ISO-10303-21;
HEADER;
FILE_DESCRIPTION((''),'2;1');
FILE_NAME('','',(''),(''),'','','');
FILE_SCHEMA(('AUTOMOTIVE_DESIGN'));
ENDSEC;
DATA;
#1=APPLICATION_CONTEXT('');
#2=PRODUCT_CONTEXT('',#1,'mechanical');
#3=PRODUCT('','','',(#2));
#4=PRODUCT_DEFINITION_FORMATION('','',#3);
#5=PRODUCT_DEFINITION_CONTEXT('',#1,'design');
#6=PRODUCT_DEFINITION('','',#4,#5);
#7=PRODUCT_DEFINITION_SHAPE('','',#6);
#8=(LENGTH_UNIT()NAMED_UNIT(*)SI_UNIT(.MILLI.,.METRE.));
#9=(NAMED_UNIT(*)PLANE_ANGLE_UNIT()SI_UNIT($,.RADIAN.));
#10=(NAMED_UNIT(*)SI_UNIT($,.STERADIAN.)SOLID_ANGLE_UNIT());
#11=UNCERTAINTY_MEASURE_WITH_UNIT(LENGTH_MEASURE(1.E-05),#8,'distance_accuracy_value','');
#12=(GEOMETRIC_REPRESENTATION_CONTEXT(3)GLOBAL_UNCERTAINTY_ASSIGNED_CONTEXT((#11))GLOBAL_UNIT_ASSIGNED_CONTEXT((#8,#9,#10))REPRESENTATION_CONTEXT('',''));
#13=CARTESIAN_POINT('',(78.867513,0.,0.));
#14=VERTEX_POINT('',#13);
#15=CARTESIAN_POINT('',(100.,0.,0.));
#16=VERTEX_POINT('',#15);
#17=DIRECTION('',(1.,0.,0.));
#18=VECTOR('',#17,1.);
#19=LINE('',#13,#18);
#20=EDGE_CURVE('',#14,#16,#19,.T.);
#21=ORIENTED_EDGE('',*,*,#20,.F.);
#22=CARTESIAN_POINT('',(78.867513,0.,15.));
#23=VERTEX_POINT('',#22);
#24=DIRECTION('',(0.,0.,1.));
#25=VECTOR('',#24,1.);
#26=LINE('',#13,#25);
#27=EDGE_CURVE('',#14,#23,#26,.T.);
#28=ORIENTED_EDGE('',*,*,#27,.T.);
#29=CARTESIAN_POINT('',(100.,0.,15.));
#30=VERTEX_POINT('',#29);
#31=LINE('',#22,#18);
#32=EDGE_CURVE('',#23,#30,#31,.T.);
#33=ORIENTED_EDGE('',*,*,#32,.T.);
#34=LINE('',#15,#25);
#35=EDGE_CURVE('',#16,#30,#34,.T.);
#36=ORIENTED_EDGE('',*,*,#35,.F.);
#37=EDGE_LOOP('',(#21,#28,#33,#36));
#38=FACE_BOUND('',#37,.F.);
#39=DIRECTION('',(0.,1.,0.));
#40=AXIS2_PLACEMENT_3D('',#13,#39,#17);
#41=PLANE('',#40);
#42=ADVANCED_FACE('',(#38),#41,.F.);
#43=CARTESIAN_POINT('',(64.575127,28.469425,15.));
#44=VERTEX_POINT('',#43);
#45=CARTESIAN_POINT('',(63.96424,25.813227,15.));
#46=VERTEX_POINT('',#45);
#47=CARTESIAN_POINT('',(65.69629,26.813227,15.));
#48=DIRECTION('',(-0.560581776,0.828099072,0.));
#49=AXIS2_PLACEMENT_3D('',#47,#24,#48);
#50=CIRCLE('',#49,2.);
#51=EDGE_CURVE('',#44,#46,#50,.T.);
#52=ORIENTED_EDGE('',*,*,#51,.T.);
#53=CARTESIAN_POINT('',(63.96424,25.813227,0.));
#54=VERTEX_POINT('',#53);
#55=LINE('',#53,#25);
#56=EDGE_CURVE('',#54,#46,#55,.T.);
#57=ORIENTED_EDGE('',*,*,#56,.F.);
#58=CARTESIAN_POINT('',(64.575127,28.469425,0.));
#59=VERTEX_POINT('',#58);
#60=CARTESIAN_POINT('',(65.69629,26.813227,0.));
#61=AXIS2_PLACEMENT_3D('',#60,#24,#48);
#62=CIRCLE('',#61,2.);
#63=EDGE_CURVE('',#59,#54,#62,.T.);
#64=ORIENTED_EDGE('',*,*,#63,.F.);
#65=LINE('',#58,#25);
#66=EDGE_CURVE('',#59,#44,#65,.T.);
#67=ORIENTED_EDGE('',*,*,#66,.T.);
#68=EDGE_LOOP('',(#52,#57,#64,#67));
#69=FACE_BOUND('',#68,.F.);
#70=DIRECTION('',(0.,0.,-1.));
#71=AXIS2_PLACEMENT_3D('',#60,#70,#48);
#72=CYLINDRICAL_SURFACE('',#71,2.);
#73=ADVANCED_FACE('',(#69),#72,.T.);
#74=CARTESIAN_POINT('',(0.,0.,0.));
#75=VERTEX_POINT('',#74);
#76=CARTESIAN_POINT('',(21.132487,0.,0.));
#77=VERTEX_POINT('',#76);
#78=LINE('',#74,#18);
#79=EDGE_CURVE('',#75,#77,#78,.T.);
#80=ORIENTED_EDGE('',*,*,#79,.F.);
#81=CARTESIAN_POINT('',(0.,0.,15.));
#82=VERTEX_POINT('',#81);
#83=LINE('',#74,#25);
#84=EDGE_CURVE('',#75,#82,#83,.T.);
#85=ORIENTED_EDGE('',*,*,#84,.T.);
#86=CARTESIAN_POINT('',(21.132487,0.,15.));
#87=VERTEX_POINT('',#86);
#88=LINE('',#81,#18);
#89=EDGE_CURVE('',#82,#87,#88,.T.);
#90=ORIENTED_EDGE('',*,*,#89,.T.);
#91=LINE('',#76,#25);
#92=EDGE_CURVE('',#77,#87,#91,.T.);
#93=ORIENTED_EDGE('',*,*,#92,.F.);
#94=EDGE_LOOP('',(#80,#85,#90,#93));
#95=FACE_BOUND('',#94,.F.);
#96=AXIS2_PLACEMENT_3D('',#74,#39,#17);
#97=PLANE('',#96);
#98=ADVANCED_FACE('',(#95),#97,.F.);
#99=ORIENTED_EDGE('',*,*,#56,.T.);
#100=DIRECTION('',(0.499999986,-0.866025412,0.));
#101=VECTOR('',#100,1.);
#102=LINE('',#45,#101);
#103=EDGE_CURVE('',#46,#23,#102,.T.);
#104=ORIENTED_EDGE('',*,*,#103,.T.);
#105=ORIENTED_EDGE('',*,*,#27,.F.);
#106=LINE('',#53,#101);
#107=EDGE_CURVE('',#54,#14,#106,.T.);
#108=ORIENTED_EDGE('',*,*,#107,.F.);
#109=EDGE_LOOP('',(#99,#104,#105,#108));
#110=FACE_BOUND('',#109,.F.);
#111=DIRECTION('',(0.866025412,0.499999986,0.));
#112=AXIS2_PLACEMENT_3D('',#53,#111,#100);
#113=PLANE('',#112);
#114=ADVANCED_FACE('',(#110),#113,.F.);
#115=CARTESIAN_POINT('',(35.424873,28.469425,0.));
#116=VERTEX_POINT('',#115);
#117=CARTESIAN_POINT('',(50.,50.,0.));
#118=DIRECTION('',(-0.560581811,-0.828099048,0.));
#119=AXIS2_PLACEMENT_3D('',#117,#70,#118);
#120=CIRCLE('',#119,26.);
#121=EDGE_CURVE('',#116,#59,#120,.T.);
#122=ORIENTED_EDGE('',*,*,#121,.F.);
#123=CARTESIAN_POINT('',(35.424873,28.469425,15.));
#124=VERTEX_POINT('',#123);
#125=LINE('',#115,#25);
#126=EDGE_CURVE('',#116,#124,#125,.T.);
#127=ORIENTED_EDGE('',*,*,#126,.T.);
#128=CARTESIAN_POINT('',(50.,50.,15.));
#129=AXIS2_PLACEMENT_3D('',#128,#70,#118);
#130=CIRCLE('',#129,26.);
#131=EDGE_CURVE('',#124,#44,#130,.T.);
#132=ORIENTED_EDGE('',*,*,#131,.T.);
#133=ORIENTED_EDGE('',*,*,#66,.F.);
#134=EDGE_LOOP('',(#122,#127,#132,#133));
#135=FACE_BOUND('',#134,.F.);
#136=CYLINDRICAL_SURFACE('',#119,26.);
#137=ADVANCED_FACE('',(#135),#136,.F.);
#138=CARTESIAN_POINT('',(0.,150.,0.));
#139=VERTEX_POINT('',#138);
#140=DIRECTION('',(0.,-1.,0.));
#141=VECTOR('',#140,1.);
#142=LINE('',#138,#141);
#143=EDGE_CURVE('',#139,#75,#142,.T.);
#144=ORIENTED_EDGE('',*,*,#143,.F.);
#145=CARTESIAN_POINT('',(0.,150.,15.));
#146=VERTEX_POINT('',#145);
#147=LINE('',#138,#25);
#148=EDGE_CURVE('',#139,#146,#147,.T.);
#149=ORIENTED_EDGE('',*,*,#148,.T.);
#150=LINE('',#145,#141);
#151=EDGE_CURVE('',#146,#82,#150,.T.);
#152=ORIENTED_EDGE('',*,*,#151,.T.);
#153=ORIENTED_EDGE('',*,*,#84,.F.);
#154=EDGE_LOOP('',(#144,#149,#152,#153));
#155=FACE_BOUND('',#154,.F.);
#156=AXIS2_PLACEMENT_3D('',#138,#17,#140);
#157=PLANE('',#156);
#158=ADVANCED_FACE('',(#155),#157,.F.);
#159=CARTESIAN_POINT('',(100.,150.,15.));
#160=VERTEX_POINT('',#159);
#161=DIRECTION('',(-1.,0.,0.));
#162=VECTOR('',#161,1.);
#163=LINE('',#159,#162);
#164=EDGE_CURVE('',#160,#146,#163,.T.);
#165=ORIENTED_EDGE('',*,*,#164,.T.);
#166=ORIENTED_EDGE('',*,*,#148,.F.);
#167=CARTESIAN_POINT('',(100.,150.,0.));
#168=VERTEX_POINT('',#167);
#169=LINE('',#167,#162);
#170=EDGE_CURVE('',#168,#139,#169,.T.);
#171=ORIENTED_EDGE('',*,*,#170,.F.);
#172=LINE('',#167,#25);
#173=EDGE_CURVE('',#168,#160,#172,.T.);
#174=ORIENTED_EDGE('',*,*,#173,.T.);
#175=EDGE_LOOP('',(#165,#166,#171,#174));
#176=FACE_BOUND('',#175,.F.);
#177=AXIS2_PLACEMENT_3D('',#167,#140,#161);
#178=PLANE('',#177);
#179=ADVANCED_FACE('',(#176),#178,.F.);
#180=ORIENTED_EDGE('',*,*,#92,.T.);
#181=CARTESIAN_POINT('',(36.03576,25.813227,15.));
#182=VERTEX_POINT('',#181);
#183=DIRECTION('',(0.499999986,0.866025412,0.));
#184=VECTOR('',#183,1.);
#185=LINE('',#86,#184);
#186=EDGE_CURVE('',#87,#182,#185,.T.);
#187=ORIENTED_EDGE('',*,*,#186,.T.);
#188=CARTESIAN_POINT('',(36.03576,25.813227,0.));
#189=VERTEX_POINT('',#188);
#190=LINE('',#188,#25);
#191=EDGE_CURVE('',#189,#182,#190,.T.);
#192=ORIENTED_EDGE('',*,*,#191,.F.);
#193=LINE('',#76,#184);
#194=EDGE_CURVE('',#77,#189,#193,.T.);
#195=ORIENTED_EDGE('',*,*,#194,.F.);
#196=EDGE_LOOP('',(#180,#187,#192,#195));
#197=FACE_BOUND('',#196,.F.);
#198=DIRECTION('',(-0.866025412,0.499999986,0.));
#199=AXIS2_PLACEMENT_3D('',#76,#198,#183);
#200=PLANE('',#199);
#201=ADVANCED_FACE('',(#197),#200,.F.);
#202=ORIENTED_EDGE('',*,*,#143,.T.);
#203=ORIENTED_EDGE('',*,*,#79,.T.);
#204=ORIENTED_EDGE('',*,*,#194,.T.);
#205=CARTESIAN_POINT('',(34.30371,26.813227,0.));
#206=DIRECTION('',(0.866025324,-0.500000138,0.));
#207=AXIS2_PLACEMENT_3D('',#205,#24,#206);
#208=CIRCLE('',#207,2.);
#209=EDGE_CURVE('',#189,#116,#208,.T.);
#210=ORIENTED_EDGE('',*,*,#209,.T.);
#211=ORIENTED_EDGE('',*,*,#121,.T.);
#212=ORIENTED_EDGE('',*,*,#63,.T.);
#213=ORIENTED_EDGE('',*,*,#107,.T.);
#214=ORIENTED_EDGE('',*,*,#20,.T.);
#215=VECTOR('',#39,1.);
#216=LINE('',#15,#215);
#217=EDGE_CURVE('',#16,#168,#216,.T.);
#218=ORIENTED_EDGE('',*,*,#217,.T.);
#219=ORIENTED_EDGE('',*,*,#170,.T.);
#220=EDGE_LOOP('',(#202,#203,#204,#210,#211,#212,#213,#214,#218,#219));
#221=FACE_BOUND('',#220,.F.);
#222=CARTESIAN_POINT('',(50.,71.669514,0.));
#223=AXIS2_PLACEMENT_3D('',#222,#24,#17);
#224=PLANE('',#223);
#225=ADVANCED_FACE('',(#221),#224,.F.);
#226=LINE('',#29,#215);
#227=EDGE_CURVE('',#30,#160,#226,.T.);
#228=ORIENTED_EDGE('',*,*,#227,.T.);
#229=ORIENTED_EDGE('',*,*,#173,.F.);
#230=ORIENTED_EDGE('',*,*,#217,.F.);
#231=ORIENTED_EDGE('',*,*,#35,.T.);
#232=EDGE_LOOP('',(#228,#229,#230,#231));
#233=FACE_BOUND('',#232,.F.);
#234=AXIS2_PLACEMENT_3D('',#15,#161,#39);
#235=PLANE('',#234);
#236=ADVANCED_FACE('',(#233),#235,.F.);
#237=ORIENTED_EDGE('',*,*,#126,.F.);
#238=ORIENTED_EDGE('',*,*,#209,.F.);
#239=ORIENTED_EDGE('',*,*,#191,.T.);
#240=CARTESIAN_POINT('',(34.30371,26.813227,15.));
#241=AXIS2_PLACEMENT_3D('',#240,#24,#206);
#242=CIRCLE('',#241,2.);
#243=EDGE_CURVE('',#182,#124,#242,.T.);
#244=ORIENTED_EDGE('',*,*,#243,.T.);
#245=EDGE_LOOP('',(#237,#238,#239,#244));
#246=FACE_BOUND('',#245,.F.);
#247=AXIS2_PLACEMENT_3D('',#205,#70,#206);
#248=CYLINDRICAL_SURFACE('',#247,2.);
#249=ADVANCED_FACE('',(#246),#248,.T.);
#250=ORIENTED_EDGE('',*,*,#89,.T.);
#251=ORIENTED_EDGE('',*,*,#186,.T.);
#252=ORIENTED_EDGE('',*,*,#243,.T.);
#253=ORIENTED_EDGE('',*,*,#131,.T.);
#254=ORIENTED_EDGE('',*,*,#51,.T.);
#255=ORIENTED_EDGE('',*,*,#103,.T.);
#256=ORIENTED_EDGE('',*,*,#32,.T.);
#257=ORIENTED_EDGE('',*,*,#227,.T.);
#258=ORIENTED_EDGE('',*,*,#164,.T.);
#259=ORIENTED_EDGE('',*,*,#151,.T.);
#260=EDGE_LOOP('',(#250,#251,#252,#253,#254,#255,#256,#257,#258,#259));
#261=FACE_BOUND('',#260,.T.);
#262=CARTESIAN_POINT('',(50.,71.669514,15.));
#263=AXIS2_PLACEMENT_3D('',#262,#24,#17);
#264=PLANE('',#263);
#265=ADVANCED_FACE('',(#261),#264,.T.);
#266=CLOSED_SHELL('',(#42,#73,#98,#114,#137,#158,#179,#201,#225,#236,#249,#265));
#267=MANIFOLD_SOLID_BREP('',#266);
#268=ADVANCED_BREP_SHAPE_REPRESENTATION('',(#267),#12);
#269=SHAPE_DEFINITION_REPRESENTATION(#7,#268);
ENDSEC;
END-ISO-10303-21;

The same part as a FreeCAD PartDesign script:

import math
import FreeCAD as App
import Part
import Sketcher
from FreeCAD import Vector
Q = App.Units.Quantity

doc = App.newDocument("Part")
params = doc.addObject("Spreadsheet::Sheet", "Params")
for row, (alias, value) in enumerate([
    ("sketch1_radius", "2 mm"),
    ("sketch1_radius2", "26 mm"),
    ("sketch1_width", "100 mm"),
    ("sketch1_height", "150 mm"),
    ("pad1_length", "15 mm"),
], start=1):
    params.set(f"A{row}", alias)
    params.set(f"B{row}", "=" + value)
    params.setAlias(f"B{row}", alias)

body = doc.addObject("PartDesign::Body", "Body")

# Sketch on XY plane
sketch1 = body.newObject("Sketcher::SketchObject", "Sketch")
sketch1.AttachmentSupport = (doc.getObject("XY_Plane"), [""])
sketch1.MapMode = "FlatFace"
sketch1.addGeometry(Part.LineSegment(Vector(0, 150, 0), Vector(0, 0, 0)), False)
sketch1.addGeometry(Part.LineSegment(Vector(0, 0, 0), Vector(21.1, 0, 0)), False)
sketch1.addGeometry(Part.LineSegment(Vector(21.1, 0, 0), Vector(36, 25.8, 0)), False)
sketch1.addGeometry(Part.ArcOfCircle(Part.Circle(Vector(34.3, 26.8, 0), Vector(0, 0, 1), 2), math.radians(-30), math.radians(56)), False)
sketch1.addGeometry(Part.ArcOfCircle(Part.Circle(Vector(50, 50, 0), Vector(0, 0, 1), 26), math.radians(-56), math.radians(236)), False)
sketch1.addGeometry(Part.ArcOfCircle(Part.Circle(Vector(65.7, 26.8, 0), Vector(0, 0, 1), 2), math.radians(124), math.radians(210)), False)
sketch1.addGeometry(Part.LineSegment(Vector(64, 25.8, 0), Vector(78.9, 0, 0)), False)
sketch1.addGeometry(Part.LineSegment(Vector(78.9, 0, 0), Vector(100, 0, 0)), False)
sketch1.addGeometry(Part.LineSegment(Vector(100, 0, 0), Vector(100, 150, 0)), False)
sketch1.addGeometry(Part.LineSegment(Vector(100, 150, 0), Vector(0, 150, 0)), False)
sketch1.addConstraint(Sketcher.Constraint("Coincident", 0, 2, 1, 1))
sketch1.addConstraint(Sketcher.Constraint("Coincident", 1, 2, 2, 1))
sketch1.addConstraint(Sketcher.Constraint("Tangent", 2, 2, 3, 1))
sketch1.addConstraint(Sketcher.Constraint("Tangent", 3, 2, 4, 2))
sketch1.addConstraint(Sketcher.Constraint("Tangent", 4, 1, 5, 1))
sketch1.addConstraint(Sketcher.Constraint("Tangent", 5, 2, 6, 1))
sketch1.addConstraint(Sketcher.Constraint("Coincident", 6, 2, 7, 1))
sketch1.addConstraint(Sketcher.Constraint("Coincident", 7, 2, 8, 1))
sketch1.addConstraint(Sketcher.Constraint("Coincident", 8, 2, 9, 1))
sketch1.addConstraint(Sketcher.Constraint("Coincident", 9, 2, 0, 1))
sketch1.addConstraint(Sketcher.Constraint("Vertical", 0))
sketch1.addConstraint(Sketcher.Constraint("Horizontal", 1))
sketch1.addConstraint(Sketcher.Constraint("Horizontal", 7))
sketch1.addConstraint(Sketcher.Constraint("Vertical", 8))
sketch1.addConstraint(Sketcher.Constraint("Horizontal", 9))
sketch1.addConstraint(Sketcher.Constraint("Coincident", 0, 2, -1, 1))
sketch1.addConstraint(Sketcher.Constraint("Equal", 3, 5))
sketch1.addConstraint(Sketcher.Constraint("PointOnObject", 6, 2, -1))
sketch1.addConstraint(Sketcher.Constraint("Horizontal", 3, 3, 5, 3))
sketch1.addConstraint(Sketcher.Constraint("Horizontal", 2, 2, 5, 2))
sketch1.addConstraint(Sketcher.Constraint("Equal", 1, 7))
sketch1.addConstraint(Sketcher.Constraint("Radius", 3, Q("2 mm")))
sketch1.addConstraint(Sketcher.Constraint("Radius", 4, Q("26 mm")))
sketch1.addConstraint(Sketcher.Constraint("DistanceX", 9, 2, 9, 1, Q("100 mm")))
sketch1.addConstraint(Sketcher.Constraint("DistanceY", 0, 2, 0, 1, Q("150 mm")))
sketch1.addConstraint(Sketcher.Constraint("Angle", 2, Q("60.000001 deg")))
sketch1.addConstraint(Sketcher.Constraint("DistanceY", -1, 1, 4, 3, Q("50 mm")))
sketch1.addConstraint(Sketcher.Constraint("DistanceY", 2, 2, 3, 2, Q("2.656198 mm")))
sketch1.setExpression("Constraints[21]", "Params.sketch1_radius")
sketch1.setExpression("Constraints[22]", "Params.sketch1_radius2")
sketch1.setExpression("Constraints[23]", "Params.sketch1_width")
sketch1.setExpression("Constraints[24]", "Params.sketch1_height")
pad1 = body.newObject("PartDesign::Pad", "Pad")
pad1.Profile = sketch1
pad1.setExpression("Length", "Params.pad1_length")

doc.recompute()
